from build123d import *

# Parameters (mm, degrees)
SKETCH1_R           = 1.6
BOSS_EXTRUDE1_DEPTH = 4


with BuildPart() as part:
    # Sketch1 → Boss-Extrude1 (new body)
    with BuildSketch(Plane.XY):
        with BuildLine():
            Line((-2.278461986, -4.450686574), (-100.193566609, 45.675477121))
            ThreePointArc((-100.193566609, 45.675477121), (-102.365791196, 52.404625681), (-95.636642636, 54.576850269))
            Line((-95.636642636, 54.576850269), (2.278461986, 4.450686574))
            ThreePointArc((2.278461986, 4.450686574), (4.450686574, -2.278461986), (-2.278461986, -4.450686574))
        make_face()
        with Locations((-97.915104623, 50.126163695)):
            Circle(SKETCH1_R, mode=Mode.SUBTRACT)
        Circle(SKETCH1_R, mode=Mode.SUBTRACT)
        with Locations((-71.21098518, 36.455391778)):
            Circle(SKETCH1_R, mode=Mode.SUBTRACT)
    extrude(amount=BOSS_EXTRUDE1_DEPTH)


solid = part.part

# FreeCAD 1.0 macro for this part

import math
import FreeCAD as App
import Part
import Sketcher
from FreeCAD import Vector
Q = App.Units.Quantity

doc = App.newDocument("Part")
body = doc.addObject("PartDesign::Body", "Body")

# Sketch on XY plane
sketch1 = body.newObject("Sketcher::SketchObject", "Sketch")
sketch1.AttachmentSupport = (doc.getObject("XY_Plane"), [""])
sketch1.MapMode = "FlatFace"
sketch1.addGeometry(Part.LineSegment(Vector(-100.2, 45.7, 0), Vector(-2.3, -4.5, 0)), False)
sketch1.addGeometry(Part.ArcOfCircle(Part.Circle(Vector(0, 0, 0), Vector(0, 0, 1), 5), math.radians(-117), math.radians(63)), False)
sketch1.addGeometry(Part.LineSegment(Vector(2.3, 4.5, 0), Vector(-95.6, 54.6, 0)), False)
sketch1.addGeometry(Part.ArcOfCircle(Part.Circle(Vector(-97.9, 50.1, 0), Vector(0, 0, 1), 5), math.radians(63), math.radians(243)), False)
sketch1.addGeometry(Part.Circle(Vector(0, 0, 0), Vector(0, 0, 1), 1.6), False)
sketch1.addGeometry(Part.Circle(Vector(-71.2, 36.5, 0), Vector(0, 0, 1), 1.6), False)
sketch1.addGeometry(Part.Circle(Vector(-97.9, 50.1, 0), Vector(0, 0, 1), 1.6), False)
sketch1.addConstraint(Sketcher.Constraint("Tangent", 0, 2, 1, 1))
sketch1.addConstraint(Sketcher.Constraint("Tangent", 1, 2, 2, 1))
sketch1.addConstraint(Sketcher.Constraint("Tangent", 2, 2, 3, 1))
sketch1.addConstraint(Sketcher.Constraint("Tangent", 3, 2, 0, 1))
sketch1.addConstraint(Sketcher.Constraint("Coincident", 1, 3, -1, 1))
sketch1.addConstraint(Sketcher.Constraint("Coincident", 4, 3, -1, 1))
sketch1.addConstraint(Sketcher.Constraint("Coincident", 6, 3, 3, 3))
sketch1.addConstraint(Sketcher.Constraint("Equal", 1, 3))
sketch1.addConstraint(Sketcher.Constraint("Equal", 4, 5))
sketch1.addConstraint(Sketcher.Constraint("Equal", 5, 6))
sketch1.addConstraint(Sketcher.Constraint("Radius", 1, Q("5 mm")))
sketch1.addConstraint(Sketcher.Constraint("Diameter", 4, Q("3.2 mm")))
sketch1.addConstraint(Sketcher.Constraint("Distance", 0, Q("110 mm")))
sketch1.addConstraint(Sketcher.Constraint("DistanceY", -1, 1, 5, 3, Q("36.455392 mm")))
sketch1.addConstraint(Sketcher.Constraint("DistanceX", 0, 2, -1, 1, Q("2.278462 mm")))
sketch1.addConstraint(Sketcher.Constraint("DistanceX", 3, 3, 5, 3, Q("26.704119 mm")))
pad1 = body.newObject("PartDesign::Pad", "Pad")
pad1.Profile = sketch1
pad1.Length = 4

doc.recompute()
